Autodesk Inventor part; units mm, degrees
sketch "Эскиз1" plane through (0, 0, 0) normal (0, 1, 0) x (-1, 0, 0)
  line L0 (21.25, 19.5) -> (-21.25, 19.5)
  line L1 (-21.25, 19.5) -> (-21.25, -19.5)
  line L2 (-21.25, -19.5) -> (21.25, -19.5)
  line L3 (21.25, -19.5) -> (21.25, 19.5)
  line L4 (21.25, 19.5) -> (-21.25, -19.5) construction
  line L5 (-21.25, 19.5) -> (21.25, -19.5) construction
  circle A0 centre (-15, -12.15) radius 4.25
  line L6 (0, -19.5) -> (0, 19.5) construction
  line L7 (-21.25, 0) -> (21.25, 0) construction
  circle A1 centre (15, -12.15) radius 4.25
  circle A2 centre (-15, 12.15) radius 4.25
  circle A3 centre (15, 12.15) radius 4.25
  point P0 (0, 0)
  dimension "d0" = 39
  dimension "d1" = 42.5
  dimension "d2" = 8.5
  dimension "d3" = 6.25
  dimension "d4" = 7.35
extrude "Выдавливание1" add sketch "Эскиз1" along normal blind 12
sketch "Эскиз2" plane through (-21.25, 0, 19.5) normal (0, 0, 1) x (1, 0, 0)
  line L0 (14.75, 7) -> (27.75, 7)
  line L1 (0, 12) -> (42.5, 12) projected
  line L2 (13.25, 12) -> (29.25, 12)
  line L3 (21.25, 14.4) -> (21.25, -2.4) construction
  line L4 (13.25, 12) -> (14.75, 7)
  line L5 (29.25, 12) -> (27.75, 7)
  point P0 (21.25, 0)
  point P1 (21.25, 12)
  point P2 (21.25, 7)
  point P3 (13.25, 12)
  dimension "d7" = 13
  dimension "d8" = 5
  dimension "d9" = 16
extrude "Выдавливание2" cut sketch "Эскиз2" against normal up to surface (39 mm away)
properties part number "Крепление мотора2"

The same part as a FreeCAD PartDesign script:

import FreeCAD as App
import Part
import Sketcher

V = App.Vector
Q = App.Units.Quantity

doc = App.newDocument("Part")
body = doc.addObject("PartDesign::Body", "Body")

sketch1 = body.newObject("Sketcher::SketchObject", "Sketch")
sketch1.AttachmentSupport = (doc.getObject("XZ_Plane"), [""])
sketch1.MapMode = "FlatFace"
sketch1.addGeometry(Part.LineSegment(V(-21.2, -19.5, 0), V(-21.2, 19.5, 0)), False)
sketch1.addGeometry(Part.LineSegment(V(-21.2, 19.5, 0), V(21.2, 19.5, 0)), False)
sketch1.addGeometry(Part.LineSegment(V(21.2, 19.5, 0), V(21.2, -19.5, 0)), False)
sketch1.addGeometry(Part.LineSegment(V(21.2, -19.5, 0), V(-21.2, -19.5, 0)), False)
sketch1.addGeometry(Part.Circle(V(15, -12.2, 0), V(0, 0, 1), 4.2), False)
sketch1.addGeometry(Part.Circle(V(-15, -12.2, 0), V(0, 0, 1), 4.2), False)
sketch1.addGeometry(Part.Circle(V(15, 12.2, 0), V(0, 0, 1), 4.2), False)
sketch1.addGeometry(Part.Circle(V(-15, 12.2, 0), V(0, 0, 1), 4.2), False)
sketch1.addConstraint(Sketcher.Constraint("Coincident", 0, 2, 1, 1))
sketch1.addConstraint(Sketcher.Constraint("Coincident", 1, 2, 2, 1))
sketch1.addConstraint(Sketcher.Constraint("Coincident", 2, 2, 3, 1))
sketch1.addConstraint(Sketcher.Constraint("Coincident", 3, 2, 0, 1))
sketch1.addConstraint(Sketcher.Constraint("Vertical", 0))
sketch1.addConstraint(Sketcher.Constraint("Horizontal", 1))
sketch1.addConstraint(Sketcher.Constraint("Vertical", 2))
sketch1.addConstraint(Sketcher.Constraint("Horizontal", 3))
sketch1.addConstraint(Sketcher.Constraint("Equal", 4, 5))
sketch1.addConstraint(Sketcher.Constraint("Equal", 5, 6))
sketch1.addConstraint(Sketcher.Constraint("Equal", 6, 7))
sketch1.addConstraint(Sketcher.Constraint("Symmetric", 5, 3, 6, 3, -1, 1))
sketch1.addConstraint(Sketcher.Constraint("Symmetric", 4, 3, 7, 3, -1, 1))
sketch1.addConstraint(Sketcher.Constraint("Symmetric", 0, 2, 2, 2, -1, 1))
sketch1.addConstraint(Sketcher.Constraint("Symmetric", 4, 3, 5, 3, -2))
sketch1.addConstraint(Sketcher.Constraint("Diameter", 4, Q("8.5 mm")))
sketch1.addConstraint(Sketcher.Constraint("DistanceY", 0, 1, 0, 2, Q("39 mm")))
sketch1.addConstraint(Sketcher.Constraint("DistanceX", 1, 1, 1, 2, Q("42.5 mm")))
sketch1.addConstraint(Sketcher.Constraint("DistanceX", 0, 2, 7, 3, Q("6.25 mm")))
sketch1.addConstraint(Sketcher.Constraint("DistanceY", 7, 3, 0, 2, Q("7.35 mm")))
pad1 = body.newObject("PartDesign::Pad", "Pad")
pad1.Profile = sketch1
pad1.Length = 12
pad1.Reversed = True

sketch2 = body.newObject("Sketcher::SketchObject", "Sketch001")
sketch2.AttachmentSupport = (doc.getObject("XY_Plane"), [""])
sketch2.MapMode = "FlatFace"
sketch2.AttachmentOffset = App.Placement(V(0, 0, 19.5), App.Rotation())
sketch2.addGeometry(Part.LineSegment(V(-8, 12, 0), V(-6, 7, 0)), False)
sketch2.addGeometry(Part.LineSegment(V(-6, 7, 0), V(6, 7, 0)), False)
sketch2.addGeometry(Part.LineSegment(V(6, 7, 0), V(8, 12, 0)), False)
sketch2.addGeometry(Part.LineSegment(V(8, 12, 0), V(-8, 12, 0)), False)
sketch2.addConstraint(Sketcher.Constraint("Coincident", 0, 2, 1, 1))
sketch2.addConstraint(Sketcher.Constraint("Coincident", 1, 2, 2, 1))
sketch2.addConstraint(Sketcher.Constraint("Coincident", 2, 2, 3, 1))
sketch2.addConstraint(Sketcher.Constraint("Coincident", 3, 2, 0, 1))
sketch2.addConstraint(Sketcher.Constraint("Horizontal", 1))
sketch2.addConstraint(Sketcher.Constraint("Horizontal", 3))
sketch2.addConstraint(Sketcher.Constraint("Equal", 0, 2))
sketch2.addConstraint(Sketcher.Constraint("DistanceX", 1, 1, 1, 2, Q("13 mm")))
sketch2.addConstraint(Sketcher.Constraint("DistanceX", 3, 2, 3, 1, Q("16 mm")))
sketch2.addConstraint(Sketcher.Constraint("DistanceY", 1, 2, 2, 2, Q("5 mm")))
sketch2.addConstraint(Sketcher.Constraint("DistanceY", -1, 1, 0, 2, Q("7 mm")))
sketch2.addConstraint(Sketcher.Constraint("DistanceX", -1, 1, 2, 2, Q("8 mm")))
pocket1 = body.newObject("PartDesign::Pocket", "Pocket")
pocket1.Profile = sketch2
pocket1.Length = 39

doc.recompute()
